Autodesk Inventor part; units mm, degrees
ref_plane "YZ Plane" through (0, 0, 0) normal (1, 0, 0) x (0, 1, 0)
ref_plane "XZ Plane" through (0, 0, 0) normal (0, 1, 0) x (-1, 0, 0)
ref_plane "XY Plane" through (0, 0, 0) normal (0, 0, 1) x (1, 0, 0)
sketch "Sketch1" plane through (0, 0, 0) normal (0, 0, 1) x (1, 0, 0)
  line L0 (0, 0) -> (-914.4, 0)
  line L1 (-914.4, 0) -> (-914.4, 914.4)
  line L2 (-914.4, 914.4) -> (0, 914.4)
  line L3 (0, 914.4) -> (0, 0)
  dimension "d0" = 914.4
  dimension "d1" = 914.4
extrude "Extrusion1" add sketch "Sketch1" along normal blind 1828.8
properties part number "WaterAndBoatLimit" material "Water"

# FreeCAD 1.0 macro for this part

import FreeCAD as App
import Part
import Sketcher

V = App.Vector
Q = App.Units.Quantity


def add_polygon(sketch, points):
    """Adds a closed chain of lines whose ends are joined by coincident constraints."""
    first, n = sketch.GeometryCount, len(points)
    for a, b in zip(points, points[1:] + points[:1]):
        sketch.addGeometry(Part.LineSegment(App.Vector(*a, 0), App.Vector(*b, 0)), False)
    for i in range(n):
        sketch.addConstraint(Sketcher.Constraint("Coincident", first + i, 2, first + (i + 1) % n, 1))

doc = App.newDocument("Part")
body = doc.addObject("PartDesign::Body", "Body")

sketch1 = doc.addObject("Sketcher::SketchObject", "Sketch")
body.addObject(sketch1)
sketch1.AttachmentSupport = (doc.XY_Plane, [""])
sketch1.MapMode = "FlatFace"
add_polygon(sketch1, [(-914, 0), (0, 0), (0, 914), (-914, 914)])
sketch1.addConstraint(Sketcher.Constraint("Horizontal", 0))
sketch1.addConstraint(Sketcher.Constraint("Vertical", 1))
sketch1.addConstraint(Sketcher.Constraint("Horizontal", 2))
sketch1.addConstraint(Sketcher.Constraint("Vertical", 3))
sketch1.addConstraint(Sketcher.Constraint("Coincident", 0, 2, -1, 1))
sketch1.addConstraint(Sketcher.Constraint("Equal", 2, 1))
sketch1.addConstraint(Sketcher.Constraint("DistanceX", 0, 1, 0, 2, Q("36 in")))
pad1 = doc.addObject("PartDesign::Pad", "Pad")
body.addObject(pad1)
pad1.Profile = sketch1
pad1.Length = Q("72 in")

doc.recompute()
